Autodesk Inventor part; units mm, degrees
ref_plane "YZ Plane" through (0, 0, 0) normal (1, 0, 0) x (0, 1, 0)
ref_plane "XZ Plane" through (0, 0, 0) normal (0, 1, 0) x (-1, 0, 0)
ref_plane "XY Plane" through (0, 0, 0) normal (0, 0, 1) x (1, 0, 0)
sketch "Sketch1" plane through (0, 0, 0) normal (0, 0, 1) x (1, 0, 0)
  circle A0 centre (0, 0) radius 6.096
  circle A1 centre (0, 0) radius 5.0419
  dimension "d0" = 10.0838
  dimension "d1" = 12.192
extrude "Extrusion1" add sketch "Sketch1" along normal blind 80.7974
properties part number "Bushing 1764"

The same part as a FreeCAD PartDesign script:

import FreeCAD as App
import Part
import Sketcher

V = App.Vector
Q = App.Units.Quantity

doc = App.newDocument("Part")
body = doc.addObject("PartDesign::Body", "Body")

sketch1 = body.newObject("Sketcher::SketchObject", "Sketch")
sketch1.AttachmentSupport = (doc.getObject("XY_Plane"), [""])
sketch1.MapMode = "FlatFace"
sketch1.addGeometry([
    Part.Circle(V(0, 0, 0), V(0, 0, 1), 6),
    Part.Circle(V(0, 0, 0), V(0, 0, 1), 5),
], False)
sketch1.addConstraint([
    Sketcher.Constraint("Coincident", 0, 3, -1, 1),
    Sketcher.Constraint("Coincident", 1, 3, -1, 1),
    Sketcher.Constraint("Diameter", 0, Q("0.48 in")),
    Sketcher.Constraint("Diameter", 1, Q("0.397 in")),
])
pad1 = body.newObject("PartDesign::Pad", "Pad")
pad1.Profile = sketch1
pad1.Length = Q("3.181 in")

doc.recompute()
